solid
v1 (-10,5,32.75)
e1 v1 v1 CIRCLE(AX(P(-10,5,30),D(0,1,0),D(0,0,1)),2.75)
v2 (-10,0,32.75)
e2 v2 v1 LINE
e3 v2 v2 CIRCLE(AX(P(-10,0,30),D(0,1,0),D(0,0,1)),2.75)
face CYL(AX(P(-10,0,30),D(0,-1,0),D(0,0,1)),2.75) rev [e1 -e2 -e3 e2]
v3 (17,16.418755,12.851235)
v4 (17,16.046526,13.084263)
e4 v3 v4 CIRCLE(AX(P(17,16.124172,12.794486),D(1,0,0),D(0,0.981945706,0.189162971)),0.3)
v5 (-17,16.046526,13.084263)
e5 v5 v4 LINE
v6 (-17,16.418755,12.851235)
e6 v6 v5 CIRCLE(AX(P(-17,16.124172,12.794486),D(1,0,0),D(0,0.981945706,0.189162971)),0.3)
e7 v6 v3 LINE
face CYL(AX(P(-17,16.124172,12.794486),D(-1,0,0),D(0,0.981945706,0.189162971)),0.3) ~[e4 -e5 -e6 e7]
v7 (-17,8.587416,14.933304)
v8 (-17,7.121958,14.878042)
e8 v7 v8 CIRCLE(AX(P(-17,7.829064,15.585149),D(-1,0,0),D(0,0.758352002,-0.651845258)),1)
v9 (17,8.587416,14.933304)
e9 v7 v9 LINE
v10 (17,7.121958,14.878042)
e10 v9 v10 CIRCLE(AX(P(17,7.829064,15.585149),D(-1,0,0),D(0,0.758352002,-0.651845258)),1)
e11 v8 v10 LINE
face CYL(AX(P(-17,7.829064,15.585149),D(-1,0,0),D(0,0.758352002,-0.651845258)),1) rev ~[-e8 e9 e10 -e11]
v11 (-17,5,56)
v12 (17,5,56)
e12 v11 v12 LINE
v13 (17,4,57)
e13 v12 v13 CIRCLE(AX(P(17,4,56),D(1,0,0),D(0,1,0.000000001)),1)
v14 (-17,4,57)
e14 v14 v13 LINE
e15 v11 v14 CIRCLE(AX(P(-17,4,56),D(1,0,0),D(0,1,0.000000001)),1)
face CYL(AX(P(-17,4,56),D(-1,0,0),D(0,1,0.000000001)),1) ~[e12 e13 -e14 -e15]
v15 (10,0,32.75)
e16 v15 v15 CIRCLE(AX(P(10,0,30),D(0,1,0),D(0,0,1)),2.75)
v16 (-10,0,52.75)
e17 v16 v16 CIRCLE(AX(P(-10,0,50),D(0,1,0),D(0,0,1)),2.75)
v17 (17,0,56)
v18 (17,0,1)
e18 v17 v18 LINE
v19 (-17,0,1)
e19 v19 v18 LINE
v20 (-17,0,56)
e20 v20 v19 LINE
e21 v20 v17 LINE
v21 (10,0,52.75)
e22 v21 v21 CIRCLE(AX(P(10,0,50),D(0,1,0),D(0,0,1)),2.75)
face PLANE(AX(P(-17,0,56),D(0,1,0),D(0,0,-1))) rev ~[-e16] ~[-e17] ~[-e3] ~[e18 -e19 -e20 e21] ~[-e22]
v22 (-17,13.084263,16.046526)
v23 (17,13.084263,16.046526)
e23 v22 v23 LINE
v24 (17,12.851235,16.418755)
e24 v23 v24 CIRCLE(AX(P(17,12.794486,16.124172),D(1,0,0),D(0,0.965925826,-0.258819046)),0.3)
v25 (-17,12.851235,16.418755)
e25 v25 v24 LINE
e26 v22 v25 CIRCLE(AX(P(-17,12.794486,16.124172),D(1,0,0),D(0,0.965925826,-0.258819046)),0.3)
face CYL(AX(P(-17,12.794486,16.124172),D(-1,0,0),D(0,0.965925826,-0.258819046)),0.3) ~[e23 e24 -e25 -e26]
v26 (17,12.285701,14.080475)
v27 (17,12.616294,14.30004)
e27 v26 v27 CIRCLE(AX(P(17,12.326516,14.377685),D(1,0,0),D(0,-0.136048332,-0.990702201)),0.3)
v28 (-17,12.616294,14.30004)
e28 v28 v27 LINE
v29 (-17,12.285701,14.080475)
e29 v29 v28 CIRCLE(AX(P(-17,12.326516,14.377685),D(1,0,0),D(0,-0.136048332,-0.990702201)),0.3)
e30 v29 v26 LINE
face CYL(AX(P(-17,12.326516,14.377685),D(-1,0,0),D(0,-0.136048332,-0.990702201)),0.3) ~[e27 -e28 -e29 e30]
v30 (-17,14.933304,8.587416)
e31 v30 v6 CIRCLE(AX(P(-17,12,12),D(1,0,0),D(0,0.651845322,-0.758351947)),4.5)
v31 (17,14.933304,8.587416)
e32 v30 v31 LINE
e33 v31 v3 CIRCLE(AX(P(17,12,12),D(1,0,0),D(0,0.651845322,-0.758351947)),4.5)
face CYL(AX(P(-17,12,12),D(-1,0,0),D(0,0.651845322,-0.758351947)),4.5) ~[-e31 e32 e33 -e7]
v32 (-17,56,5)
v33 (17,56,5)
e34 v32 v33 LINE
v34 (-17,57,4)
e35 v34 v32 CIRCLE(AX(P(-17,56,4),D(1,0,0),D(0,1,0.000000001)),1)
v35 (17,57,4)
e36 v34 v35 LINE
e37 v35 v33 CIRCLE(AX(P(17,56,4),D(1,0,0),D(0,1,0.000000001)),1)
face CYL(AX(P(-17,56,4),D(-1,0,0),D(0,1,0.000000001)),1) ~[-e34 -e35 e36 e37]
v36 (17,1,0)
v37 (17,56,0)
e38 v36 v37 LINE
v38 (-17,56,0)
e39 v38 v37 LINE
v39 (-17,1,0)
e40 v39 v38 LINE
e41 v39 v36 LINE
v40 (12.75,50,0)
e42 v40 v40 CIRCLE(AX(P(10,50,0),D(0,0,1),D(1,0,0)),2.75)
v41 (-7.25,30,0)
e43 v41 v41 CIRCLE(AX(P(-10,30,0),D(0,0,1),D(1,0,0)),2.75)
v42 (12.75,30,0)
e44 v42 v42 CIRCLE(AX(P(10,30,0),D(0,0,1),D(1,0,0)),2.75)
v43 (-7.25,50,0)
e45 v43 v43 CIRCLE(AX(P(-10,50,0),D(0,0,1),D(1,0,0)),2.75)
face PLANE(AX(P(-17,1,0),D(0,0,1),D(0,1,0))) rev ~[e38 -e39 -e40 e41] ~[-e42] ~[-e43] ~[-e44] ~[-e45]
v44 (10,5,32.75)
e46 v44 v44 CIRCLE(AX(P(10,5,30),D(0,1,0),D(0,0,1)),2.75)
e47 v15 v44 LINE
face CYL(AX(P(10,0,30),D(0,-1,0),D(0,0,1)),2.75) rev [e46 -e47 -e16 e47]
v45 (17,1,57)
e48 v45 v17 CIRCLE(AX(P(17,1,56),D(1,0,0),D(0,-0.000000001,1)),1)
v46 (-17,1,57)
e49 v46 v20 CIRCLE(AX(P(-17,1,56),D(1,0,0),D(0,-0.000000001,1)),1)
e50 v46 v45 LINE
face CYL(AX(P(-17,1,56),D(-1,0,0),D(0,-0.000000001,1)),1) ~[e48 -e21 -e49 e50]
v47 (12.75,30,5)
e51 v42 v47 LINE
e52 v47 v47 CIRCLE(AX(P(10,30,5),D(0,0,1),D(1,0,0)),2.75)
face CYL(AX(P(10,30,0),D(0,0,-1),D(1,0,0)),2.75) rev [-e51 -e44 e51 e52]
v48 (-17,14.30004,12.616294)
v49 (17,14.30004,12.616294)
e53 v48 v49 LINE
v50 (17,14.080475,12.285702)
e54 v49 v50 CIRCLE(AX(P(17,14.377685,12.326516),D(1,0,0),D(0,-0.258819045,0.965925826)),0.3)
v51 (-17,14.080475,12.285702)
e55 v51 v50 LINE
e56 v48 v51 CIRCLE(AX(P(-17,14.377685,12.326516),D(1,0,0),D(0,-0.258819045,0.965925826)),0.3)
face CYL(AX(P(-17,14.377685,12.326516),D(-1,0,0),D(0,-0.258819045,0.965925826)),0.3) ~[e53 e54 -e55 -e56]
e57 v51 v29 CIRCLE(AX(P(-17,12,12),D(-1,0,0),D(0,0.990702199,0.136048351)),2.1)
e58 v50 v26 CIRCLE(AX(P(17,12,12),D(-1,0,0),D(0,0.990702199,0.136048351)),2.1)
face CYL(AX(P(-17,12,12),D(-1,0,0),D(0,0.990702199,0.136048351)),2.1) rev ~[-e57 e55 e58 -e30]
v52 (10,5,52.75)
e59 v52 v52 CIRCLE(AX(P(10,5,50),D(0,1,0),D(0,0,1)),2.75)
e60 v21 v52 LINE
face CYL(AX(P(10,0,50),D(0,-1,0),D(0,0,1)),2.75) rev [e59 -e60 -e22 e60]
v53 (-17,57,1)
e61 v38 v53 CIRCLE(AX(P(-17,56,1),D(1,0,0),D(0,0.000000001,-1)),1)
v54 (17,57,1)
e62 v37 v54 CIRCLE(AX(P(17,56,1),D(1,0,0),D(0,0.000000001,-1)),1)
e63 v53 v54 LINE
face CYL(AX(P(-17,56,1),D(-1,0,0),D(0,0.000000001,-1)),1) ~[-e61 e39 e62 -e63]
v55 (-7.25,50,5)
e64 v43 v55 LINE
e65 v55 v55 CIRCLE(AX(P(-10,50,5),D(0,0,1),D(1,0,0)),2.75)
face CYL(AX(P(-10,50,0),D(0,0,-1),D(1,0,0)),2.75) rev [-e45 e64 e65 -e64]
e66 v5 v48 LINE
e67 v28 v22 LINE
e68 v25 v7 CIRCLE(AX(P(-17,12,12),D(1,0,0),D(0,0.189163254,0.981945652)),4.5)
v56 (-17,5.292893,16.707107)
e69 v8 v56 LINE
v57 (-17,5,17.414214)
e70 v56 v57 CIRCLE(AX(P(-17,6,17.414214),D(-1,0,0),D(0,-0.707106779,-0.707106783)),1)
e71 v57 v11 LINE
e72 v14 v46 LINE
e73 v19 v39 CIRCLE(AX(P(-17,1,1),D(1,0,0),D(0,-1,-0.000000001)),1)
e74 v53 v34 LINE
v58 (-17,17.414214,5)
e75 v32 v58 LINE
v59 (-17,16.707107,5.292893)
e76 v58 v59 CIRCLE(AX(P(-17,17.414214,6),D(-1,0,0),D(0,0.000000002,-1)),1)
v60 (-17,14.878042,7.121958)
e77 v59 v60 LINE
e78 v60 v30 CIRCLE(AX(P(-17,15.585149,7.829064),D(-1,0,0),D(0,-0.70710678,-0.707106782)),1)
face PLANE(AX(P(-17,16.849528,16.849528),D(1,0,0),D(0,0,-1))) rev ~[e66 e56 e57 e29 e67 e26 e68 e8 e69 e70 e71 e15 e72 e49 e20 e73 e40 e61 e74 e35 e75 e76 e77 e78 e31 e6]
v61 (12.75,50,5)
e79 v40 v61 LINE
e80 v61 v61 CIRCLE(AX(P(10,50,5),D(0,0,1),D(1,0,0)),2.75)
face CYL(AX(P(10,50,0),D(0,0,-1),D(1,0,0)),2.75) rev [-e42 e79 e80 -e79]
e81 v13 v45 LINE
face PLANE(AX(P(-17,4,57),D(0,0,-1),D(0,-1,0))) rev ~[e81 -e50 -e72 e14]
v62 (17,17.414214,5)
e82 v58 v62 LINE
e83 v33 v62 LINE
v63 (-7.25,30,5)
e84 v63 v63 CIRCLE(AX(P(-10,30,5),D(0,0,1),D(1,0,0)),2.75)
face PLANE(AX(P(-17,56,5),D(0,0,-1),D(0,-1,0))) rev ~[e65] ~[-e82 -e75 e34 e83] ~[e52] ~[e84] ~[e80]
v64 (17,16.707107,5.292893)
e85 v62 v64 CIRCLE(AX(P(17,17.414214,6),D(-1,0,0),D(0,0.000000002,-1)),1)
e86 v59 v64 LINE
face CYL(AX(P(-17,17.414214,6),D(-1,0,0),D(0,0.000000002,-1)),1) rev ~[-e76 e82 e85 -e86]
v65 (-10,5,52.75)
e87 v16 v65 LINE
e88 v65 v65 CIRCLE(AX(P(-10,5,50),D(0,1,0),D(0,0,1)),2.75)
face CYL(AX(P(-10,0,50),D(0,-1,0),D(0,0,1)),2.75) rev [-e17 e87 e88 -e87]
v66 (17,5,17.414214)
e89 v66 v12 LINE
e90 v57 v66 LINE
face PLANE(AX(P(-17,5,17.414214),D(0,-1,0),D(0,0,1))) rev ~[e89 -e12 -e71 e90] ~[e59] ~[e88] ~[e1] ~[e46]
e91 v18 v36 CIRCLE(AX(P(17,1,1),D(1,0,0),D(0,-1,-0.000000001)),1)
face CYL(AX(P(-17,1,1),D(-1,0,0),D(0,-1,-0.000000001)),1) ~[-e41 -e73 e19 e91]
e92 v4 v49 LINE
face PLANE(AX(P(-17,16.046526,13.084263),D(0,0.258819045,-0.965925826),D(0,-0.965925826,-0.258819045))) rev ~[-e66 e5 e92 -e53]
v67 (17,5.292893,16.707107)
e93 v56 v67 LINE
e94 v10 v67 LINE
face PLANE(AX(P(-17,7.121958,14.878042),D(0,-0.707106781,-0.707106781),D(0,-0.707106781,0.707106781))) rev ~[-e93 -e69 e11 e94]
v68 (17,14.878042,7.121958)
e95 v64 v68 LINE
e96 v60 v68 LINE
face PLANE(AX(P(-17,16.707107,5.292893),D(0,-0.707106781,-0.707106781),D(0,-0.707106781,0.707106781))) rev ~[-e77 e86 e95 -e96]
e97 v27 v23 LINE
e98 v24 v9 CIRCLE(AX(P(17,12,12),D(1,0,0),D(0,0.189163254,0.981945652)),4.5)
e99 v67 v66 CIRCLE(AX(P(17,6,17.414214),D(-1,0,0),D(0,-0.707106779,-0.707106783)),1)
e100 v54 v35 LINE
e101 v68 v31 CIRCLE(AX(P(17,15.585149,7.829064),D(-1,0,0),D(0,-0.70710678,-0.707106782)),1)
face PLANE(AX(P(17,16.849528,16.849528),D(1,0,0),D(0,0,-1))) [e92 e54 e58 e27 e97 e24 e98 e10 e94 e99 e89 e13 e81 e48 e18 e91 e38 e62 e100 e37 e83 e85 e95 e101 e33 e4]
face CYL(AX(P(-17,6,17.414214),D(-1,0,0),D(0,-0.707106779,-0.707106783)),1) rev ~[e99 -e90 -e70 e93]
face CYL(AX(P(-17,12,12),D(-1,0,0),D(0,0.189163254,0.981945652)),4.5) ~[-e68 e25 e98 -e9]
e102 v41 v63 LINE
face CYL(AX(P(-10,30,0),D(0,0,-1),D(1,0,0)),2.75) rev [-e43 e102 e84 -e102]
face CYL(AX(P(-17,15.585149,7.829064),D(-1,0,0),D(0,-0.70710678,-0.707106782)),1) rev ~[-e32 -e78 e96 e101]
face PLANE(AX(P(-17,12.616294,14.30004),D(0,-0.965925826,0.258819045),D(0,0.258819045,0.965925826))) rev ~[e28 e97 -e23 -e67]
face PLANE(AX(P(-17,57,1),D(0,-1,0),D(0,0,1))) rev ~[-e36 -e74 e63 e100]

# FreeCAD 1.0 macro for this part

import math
import FreeCAD as App
import Part
import Sketcher
from FreeCAD import Vector
Q = App.Units.Quantity

doc = App.newDocument("Part")
params = doc.addObject("Spreadsheet::Sheet", "Params")
for row, (alias, value) in enumerate([
    ("sketch1_radius", "1 mm"),
    ("sketch1_radius2", "4.5 mm"),
    ("sketch1_radius3", "0.3 mm"),
    ("sketch1_radius4", "2.1 mm"),
    ("sketch1_width", "55 mm"),
    ("pad1_length", "17 mm"),
    ("pad1_length2", "17 mm"),
    ("sketch2_diameter", "5.5 mm"),
    ("pocket1_length", "5 mm"),
    ("sketch3_diameter", "5.5 mm"),
    ("pocket2_length", "5 mm"),
    ("sketch4_diameter", "5.5 mm"),
    ("pocket3_length", "5 mm"),
    ("sketch5_diameter", "5.5 mm"),
    ("pocket4_length", "5 mm"),
    ("sketch6_diameter", "5.5 mm"),
    ("pocket5_length", "5 mm"),
    ("sketch7_diameter", "5.5 mm"),
    ("pocket6_length", "5 mm"),
    ("sketch8_diameter", "5.5 mm"),
    ("pocket7_length", "5 mm"),
    ("sketch9_diameter", "5.5 mm"),
    ("pocket8_length", "5 mm"),
], start=1):
    params.set(f"A{row}", alias)
    params.set(f"B{row}", "=" + value)
    params.setAlias(f"B{row}", alias)

body = doc.addObject("PartDesign::Body", "Body")

sketch1 = doc.addObject("Sketcher::SketchObject", "Sketch")
body.addObject(sketch1)
sketch1.AttachmentSupport = (doc.YZ_Plane, [""])
sketch1.MapMode = "FlatFace"
sketch1.addGeometry([
    Part.LineSegment(Vector(0, 56, 0), Vector(0, 1, 0)),
    Part.ArcOfCircle(Part.Circle(Vector(1, 1, 0), Vector(0, 0, 1), 1), math.radians(-180), math.radians(-90)),
    Part.LineSegment(Vector(1, 0, 0), Vector(56, 0, 0)),
    Part.ArcOfCircle(Part.Circle(Vector(56, 1, 0), Vector(0, 0, 1), 1), math.radians(-90), math.radians(0)),
    Part.LineSegment(Vector(57, 1, 0), Vector(57, 4, 0)),
    Part.ArcOfCircle(Part.Circle(Vector(56, 4, 0), Vector(0, 0, 1), 1), math.radians(0), math.radians(90)),
    Part.LineSegment(Vector(56, 5, 0), Vector(17.41, 5, 0)),
    Part.ArcOfCircle(Part.Circle(Vector(17.41, 6, 0), Vector(0, 0, 1), 1), math.radians(-135), math.radians(-90)),
    Part.LineSegment(Vector(16.71, 5.29, 0), Vector(14.88, 7.12, 0)),
    Part.ArcOfCircle(Part.Circle(Vector(15.59, 7.83, 0), Vector(0, 0, 1), 1), math.radians(131), math.radians(225)),
    Part.ArcOfCircle(Part.Circle(Vector(12, 12, 0), Vector(0, 0, 1), 4.5), math.radians(-49), math.radians(11)),
    Part.ArcOfCircle(Part.Circle(Vector(16.12, 12.79, 0), Vector(0, 0, 1), 0.3), math.radians(11), math.radians(105)),
    Part.LineSegment(Vector(16.05, 13.08, 0), Vector(14.3, 12.62, 0)),
    Part.ArcOfCircle(Part.Circle(Vector(14.38, 12.33, 0), Vector(0, 0, 1), 0.3), math.radians(105), math.radians(188)),
    Part.ArcOfCircle(Part.Circle(Vector(12, 12, 0), Vector(0, 0, 1), 2.1), math.radians(82), math.radians(368)),
    Part.ArcOfCircle(Part.Circle(Vector(12.33, 14.38, 0), Vector(0, 0, 1), 0.3), math.radians(-98), math.radians(-15)),
    Part.LineSegment(Vector(12.62, 14.3, 0), Vector(13.08, 16.05, 0)),
    Part.ArcOfCircle(Part.Circle(Vector(12.79, 16.12, 0), Vector(0, 0, 1), 0.3), math.radians(-15), math.radians(79)),
    Part.ArcOfCircle(Part.Circle(Vector(12, 12, 0), Vector(0, 0, 1), 4.5), math.radians(79), math.radians(139)),
    Part.ArcOfCircle(Part.Circle(Vector(7.83, 15.59, 0), Vector(0, 0, 1), 1), math.radians(-135), math.radians(-41)),
    Part.LineSegment(Vector(7.12, 14.88, 0), Vector(5.29, 16.71, 0)),
    Part.ArcOfCircle(Part.Circle(Vector(6, 17.41, 0), Vector(0, 0, 1), 1), math.radians(180), math.radians(225)),
    Part.LineSegment(Vector(5, 17.41, 0), Vector(5, 56, 0)),
    Part.ArcOfCircle(Part.Circle(Vector(4, 56, 0), Vector(0, 0, 1), 1), math.radians(0), math.radians(90)),
    Part.LineSegment(Vector(4, 57, 0), Vector(1, 57, 0)),
    Part.ArcOfCircle(Part.Circle(Vector(1, 56, 0), Vector(0, 0, 1), 1), math.radians(90), math.radians(180)),
], False)
sketch1.addConstraint([
    Sketcher.Constraint("Tangent", 0, 2, 1, 1),
    Sketcher.Constraint("Tangent", 1, 2, 2, 1),
    Sketcher.Constraint("Tangent", 2, 2, 3, 1),
    Sketcher.Constraint("Tangent", 3, 2, 4, 1),
    Sketcher.Constraint("Tangent", 4, 2, 5, 1),
    Sketcher.Constraint("Tangent", 5, 2, 6, 1),
    Sketcher.Constraint("Tangent", 6, 2, 7, 2),
    Sketcher.Constraint("Tangent", 7, 1, 8, 1),
    Sketcher.Constraint("Tangent", 8, 2, 9, 2),
    Sketcher.Constraint("Tangent", 9, 1, 10, 1),
    Sketcher.Constraint("Tangent", 10, 2, 11, 1),
    Sketcher.Constraint("Tangent", 11, 2, 12, 1),
    Sketcher.Constraint("Tangent", 12, 2, 13, 1),
    Sketcher.Constraint("Tangent", 13, 2, 14, 2),
    Sketcher.Constraint("Tangent", 14, 1, 15, 1),
    Sketcher.Constraint("Tangent", 15, 2, 16, 1),
    Sketcher.Constraint("Tangent", 16, 2, 17, 1),
    Sketcher.Constraint("Tangent", 17, 2, 18, 1),
    Sketcher.Constraint("Tangent", 18, 2, 19, 2),
    Sketcher.Constraint("Tangent", 19, 1, 20, 1),
    Sketcher.Constraint("Tangent", 20, 2, 21, 2),
    Sketcher.Constraint("Tangent", 21, 1, 22, 1),
    Sketcher.Constraint("Tangent", 22, 2, 23, 1),
    Sketcher.Constraint("Tangent", 23, 2, 24, 1),
    Sketcher.Constraint("Tangent", 24, 2, 25, 1),
    Sketcher.Constraint("Tangent", 25, 2, 0, 1),
    Sketcher.Constraint("Vertical", 0),
    Sketcher.Constraint("Horizontal", 2),
    Sketcher.Constraint("Vertical", 4),
    Sketcher.Constraint("Horizontal", 6),
    Sketcher.Constraint("Vertical", 22),
    Sketcher.Constraint("Horizontal", 24),
    Sketcher.Constraint("Coincident", 14, 3, 10, 3),
    Sketcher.Constraint("Coincident", 18, 3, 10, 3),
    Sketcher.Constraint("Equal", 1, 3),
    Sketcher.Constraint("Equal", 3, 5),
    Sketcher.Constraint("Equal", 5, 7),
    Sketcher.Constraint("Equal", 7, 9),
    Sketcher.Constraint("Equal", 11, 13),
    Sketcher.Constraint("Equal", 13, 15),
    Sketcher.Constraint("Equal", 15, 17),
    Sketcher.Constraint("Equal", 10, 18),
    Sketcher.Constraint("Equal", 9, 19),
    Sketcher.Constraint("Equal", 19, 21),
    Sketcher.Constraint("Equal", 21, 23),
    Sketcher.Constraint("Equal", 23, 25),
    Sketcher.Constraint("PointOnObject", 0, 2, -2),
    Sketcher.Constraint("PointOnObject", 1, 2, -1),
    Sketcher.Constraint("Parallel", 8, 20),
    Sketcher.Constraint("Equal", 2, 0),
    Sketcher.Constraint("Equal", 24, 4),
    Sketcher.Constraint("Equal", 6, 22),
    Sketcher.Constraint("Equal", 12, 16),
    Sketcher.Constraint("Equal", 8, 20),
    Sketcher.Constraint("Radius", 1, Q("1 mm")),
    Sketcher.Constraint("Radius", 10, Q("4.5 mm")),
    Sketcher.Constraint("Radius", 11, Q("0.3 mm")),
    Sketcher.Constraint("Radius", 14, Q("2.1 mm")),
    Sketcher.Constraint("DistanceX", 2, 1, 2, 2, Q("55 mm")),
    Sketcher.Constraint("DistanceX", 24, 2, 24, 1, Q("3 mm")),
    Sketcher.Constraint("Angle", 8, Q("135 deg")),
    Sketcher.Constraint("Angle", 12, Q("-165 deg")),
    Sketcher.Constraint("Angle", 16, Q("75 deg")),
    Sketcher.Constraint("DistanceX", -1, 1, 10, 3, Q("12 mm")),
    Sketcher.Constraint("DistanceY", -1, 1, 13, 2, Q("12.285702 mm")),
    Sketcher.Constraint("DistanceY", 9, 1, 13, 3, Q("3.7391 mm")),
])
sketch1.setExpression("Constraints[54]", "Params.sketch1_radius")
sketch1.setExpression("Constraints[55]", "Params.sketch1_radius2")
sketch1.setExpression("Constraints[56]", "Params.sketch1_radius3")
sketch1.setExpression("Constraints[57]", "Params.sketch1_radius4")
sketch1.setExpression("Constraints[58]", "Params.sketch1_width")
pad1 = doc.addObject("PartDesign::Pad", "Pad")
body.addObject(pad1)
pad1.Profile = sketch1
pad1.Type = "TwoLengths"
pad1.setExpression("Length", "Params.pad1_length")
pad1.setExpression("Length2", "Params.pad1_length2")

sketch2 = doc.addObject("Sketcher::SketchObject", "Sketch001")
body.addObject(sketch2)
sketch2.AttachmentSupport = (doc.XZ_Plane, [""])
sketch2.MapMode = "FlatFace"
sketch2.addGeometry(Part.Circle(Vector(-10, 30, 0), Vector(0, 0, 1), 2.8), False)
sketch2.addConstraint([
    Sketcher.Constraint("Diameter", 0, Q("5.5 mm")),
    Sketcher.Constraint("DistanceX", 0, 3, -1, 1, Q("10 mm")),
    Sketcher.Constraint("DistanceY", -1, 1, 0, 3, Q("30 mm")),
])
sketch2.setExpression("Constraints[0]", "Params.sketch2_diameter")
pocket1 = doc.addObject("PartDesign::Pocket", "Pocket")
body.addObject(pocket1)
pocket1.Profile = sketch2
pocket1.setExpression("Length", "Params.pocket1_length")

sketch3 = doc.addObject("Sketcher::SketchObject", "Sketch002")
body.addObject(sketch3)
sketch3.AttachmentSupport = (doc.XZ_Plane, [""])
sketch3.MapMode = "FlatFace"
sketch3.addGeometry(Part.Circle(Vector(-10, 50, 0), Vector(0, 0, 1), 2.8), False)
sketch3.addConstraint([
    Sketcher.Constraint("Diameter", 0, Q("5.5 mm")),
    Sketcher.Constraint("DistanceX", 0, 3, -1, 1, Q("10 mm")),
    Sketcher.Constraint("DistanceY", -1, 1, 0, 3, Q("50 mm")),
])
sketch3.setExpression("Constraints[0]", "Params.sketch3_diameter")
pocket2 = doc.addObject("PartDesign::Pocket", "Pocket001")
body.addObject(pocket2)
pocket2.Profile = sketch3
pocket2.setExpression("Length", "Params.pocket2_length")

sketch4 = doc.addObject("Sketcher::SketchObject", "Sketch003")
body.addObject(sketch4)
sketch4.AttachmentSupport = (doc.XZ_Plane, [""])
sketch4.MapMode = "FlatFace"
sketch4.addGeometry(Part.Circle(Vector(10, 30, 0), Vector(0, 0, 1), 2.8), False)
sketch4.addConstraint([
    Sketcher.Constraint("Diameter", 0, Q("5.5 mm")),
    Sketcher.Constraint("DistanceX", -1, 1, 0, 3, Q("10 mm")),
    Sketcher.Constraint("DistanceY", -1, 1, 0, 3, Q("30 mm")),
])
sketch4.setExpression("Constraints[0]", "Params.sketch4_diameter")
pocket3 = doc.addObject("PartDesign::Pocket", "Pocket002")
body.addObject(pocket3)
pocket3.Profile = sketch4
pocket3.setExpression("Length", "Params.pocket3_length")

sketch5 = doc.addObject("Sketcher::SketchObject", "Sketch004")
body.addObject(sketch5)
sketch5.AttachmentSupport = (doc.XZ_Plane, [""])
sketch5.MapMode = "FlatFace"
sketch5.addGeometry(Part.Circle(Vector(10, 50, 0), Vector(0, 0, 1), 2.8), False)
sketch5.addConstraint([
    Sketcher.Constraint("Diameter", 0, Q("5.5 mm")),
    Sketcher.Constraint("DistanceX", -1, 1, 0, 3, Q("10 mm")),
    Sketcher.Constraint("DistanceY", -1, 1, 0, 3, Q("50 mm")),
])
sketch5.setExpression("Constraints[0]", "Params.sketch5_diameter")
pocket4 = doc.addObject("PartDesign::Pocket", "Pocket003")
body.addObject(pocket4)
pocket4.Profile = sketch5
pocket4.setExpression("Length", "Params.pocket4_length")

sketch6 = doc.addObject("Sketcher::SketchObject", "Sketch005")
body.addObject(sketch6)
sketch6.AttachmentSupport = (doc.XY_Plane, [""])
sketch6.MapMode = "FlatFace"
sketch6.addGeometry(Part.Circle(Vector(-10, 30, 0), Vector(0, 0, 1), 2.8), False)
sketch6.addConstraint([
    Sketcher.Constraint("Diameter", 0, Q("5.5 mm")),
    Sketcher.Constraint("DistanceX", 0, 3, -1, 1, Q("10 mm")),
    Sketcher.Constraint("DistanceY", -1, 1, 0, 3, Q("30 mm")),
])
sketch6.setExpression("Constraints[0]", "Params.sketch6_diameter")
pocket5 = doc.addObject("PartDesign::Pocket", "Pocket004")
body.addObject(pocket5)
pocket5.Profile = sketch6
pocket5.setExpression("Length", "Params.pocket5_length")
pocket5.Reversed = True

sketch7 = doc.addObject("Sketcher::SketchObject", "Sketch006")
body.addObject(sketch7)
sketch7.AttachmentSupport = (doc.XY_Plane, [""])
sketch7.MapMode = "FlatFace"
sketch7.addGeometry(Part.Circle(Vector(10, 30, 0), Vector(0, 0, 1), 2.8), False)
sketch7.addConstraint([
    Sketcher.Constraint("Diameter", 0, Q("5.5 mm")),
    Sketcher.Constraint("DistanceX", -1, 1, 0, 3, Q("10 mm")),
    Sketcher.Constraint("DistanceY", -1, 1, 0, 3, Q("30 mm")),
])
sketch7.setExpression("Constraints[0]", "Params.sketch7_diameter")
pocket6 = doc.addObject("PartDesign::Pocket", "Pocket005")
body.addObject(pocket6)
pocket6.Profile = sketch7
pocket6.setExpression("Length", "Params.pocket6_length")
pocket6.Reversed = True

sketch8 = doc.addObject("Sketcher::SketchObject", "Sketch007")
body.addObject(sketch8)
sketch8.AttachmentSupport = (doc.XY_Plane, [""])
sketch8.MapMode = "FlatFace"
sketch8.addGeometry(Part.Circle(Vector(-10, 50, 0), Vector(0, 0, 1), 2.8), False)
sketch8.addConstraint([
    Sketcher.Constraint("Diameter", 0, Q("5.5 mm")),
    Sketcher.Constraint("DistanceX", 0, 3, -1, 1, Q("10 mm")),
    Sketcher.Constraint("DistanceY", -1, 1, 0, 3, Q("50 mm")),
])
sketch8.setExpression("Constraints[0]", "Params.sketch8_diameter")
pocket7 = doc.addObject("PartDesign::Pocket", "Pocket006")
body.addObject(pocket7)
pocket7.Profile = sketch8
pocket7.setExpression("Length", "Params.pocket7_length")
pocket7.Reversed = True

sketch9 = doc.addObject("Sketcher::SketchObject", "Sketch008")
body.addObject(sketch9)
sketch9.AttachmentSupport = (doc.XY_Plane, [""])
sketch9.MapMode = "FlatFace"
sketch9.addGeometry(Part.Circle(Vector(10, 50, 0), Vector(0, 0, 1), 2.8), False)
sketch9.addConstraint([
    Sketcher.Constraint("Diameter", 0, Q("5.5 mm")),
    Sketcher.Constraint("DistanceX", -1, 1, 0, 3, Q("10 mm")),
    Sketcher.Constraint("DistanceY", -1, 1, 0, 3, Q("50 mm")),
])
sketch9.setExpression("Constraints[0]", "Params.sketch9_diameter")
pocket8 = doc.addObject("PartDesign::Pocket", "Pocket007")
body.addObject(pocket8)
pocket8.Profile = sketch9
pocket8.setExpression("Length", "Params.pocket8_length")
pocket8.Reversed = True

doc.recompute()
